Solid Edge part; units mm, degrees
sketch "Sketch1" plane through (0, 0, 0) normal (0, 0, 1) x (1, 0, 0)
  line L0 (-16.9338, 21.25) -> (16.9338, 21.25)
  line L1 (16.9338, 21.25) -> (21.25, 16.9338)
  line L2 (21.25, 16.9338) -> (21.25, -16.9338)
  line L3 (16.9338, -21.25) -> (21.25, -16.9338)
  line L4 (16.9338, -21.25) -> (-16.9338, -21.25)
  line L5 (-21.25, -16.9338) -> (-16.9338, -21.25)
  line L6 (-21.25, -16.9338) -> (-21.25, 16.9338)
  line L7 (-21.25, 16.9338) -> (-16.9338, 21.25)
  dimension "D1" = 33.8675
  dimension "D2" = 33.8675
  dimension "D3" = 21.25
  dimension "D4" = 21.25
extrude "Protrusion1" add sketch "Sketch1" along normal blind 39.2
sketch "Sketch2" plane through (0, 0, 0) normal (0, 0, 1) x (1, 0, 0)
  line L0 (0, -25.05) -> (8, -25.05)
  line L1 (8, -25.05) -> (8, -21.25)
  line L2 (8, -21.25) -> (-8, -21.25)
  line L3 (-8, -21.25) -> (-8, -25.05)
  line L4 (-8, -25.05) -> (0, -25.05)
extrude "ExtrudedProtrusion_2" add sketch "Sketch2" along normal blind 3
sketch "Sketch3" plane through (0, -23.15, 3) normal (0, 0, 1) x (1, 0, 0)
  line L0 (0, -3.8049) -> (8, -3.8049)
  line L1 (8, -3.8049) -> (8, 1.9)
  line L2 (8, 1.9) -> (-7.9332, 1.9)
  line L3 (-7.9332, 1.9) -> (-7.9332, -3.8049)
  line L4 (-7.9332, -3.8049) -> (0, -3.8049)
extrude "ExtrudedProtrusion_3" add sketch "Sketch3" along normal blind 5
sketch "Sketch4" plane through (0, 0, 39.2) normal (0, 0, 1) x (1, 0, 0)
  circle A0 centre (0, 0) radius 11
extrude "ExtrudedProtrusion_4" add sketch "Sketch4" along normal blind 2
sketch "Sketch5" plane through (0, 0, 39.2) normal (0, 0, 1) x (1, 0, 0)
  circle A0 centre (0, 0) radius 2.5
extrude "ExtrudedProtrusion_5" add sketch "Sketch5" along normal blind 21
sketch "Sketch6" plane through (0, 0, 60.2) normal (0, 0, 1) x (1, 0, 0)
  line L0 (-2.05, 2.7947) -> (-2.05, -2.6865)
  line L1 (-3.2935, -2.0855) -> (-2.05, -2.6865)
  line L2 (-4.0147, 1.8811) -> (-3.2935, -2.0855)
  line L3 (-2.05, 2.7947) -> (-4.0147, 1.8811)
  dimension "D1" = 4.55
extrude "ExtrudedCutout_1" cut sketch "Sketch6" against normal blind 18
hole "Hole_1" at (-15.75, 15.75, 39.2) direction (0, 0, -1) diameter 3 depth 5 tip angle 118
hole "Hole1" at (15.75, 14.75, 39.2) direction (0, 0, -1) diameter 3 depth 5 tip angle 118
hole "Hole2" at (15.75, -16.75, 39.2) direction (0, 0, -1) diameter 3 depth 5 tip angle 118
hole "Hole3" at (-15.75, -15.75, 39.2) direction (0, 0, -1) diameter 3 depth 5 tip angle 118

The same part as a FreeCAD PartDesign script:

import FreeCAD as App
import Part
import Sketcher

V = App.Vector


def add_polygon(sketch, points):
    """Adds a closed chain of lines whose ends are joined by coincident constraints."""
    first, n = sketch.GeometryCount, len(points)
    for a, b in zip(points, points[1:] + points[:1]):
        sketch.addGeometry(Part.LineSegment(App.Vector(*a, 0), App.Vector(*b, 0)), False)
    for i in range(n):
        sketch.addConstraint(Sketcher.Constraint("Coincident", first + i, 2, first + (i + 1) % n, 1))

doc = App.newDocument("Part")
params = doc.addObject("Spreadsheet::Sheet", "Params")
for row, (alias, value) in enumerate([
    ("pad1_length", "39.2 mm"),
    ("sketch2_width", "16 mm"),
    ("sketch2_height", "3.8 mm"),
    ("pad2_length", "3 mm"),
    ("pad3_length", "5 mm"),
    ("sketch4_diameter", "22 mm"),
    ("pad4_length", "2 mm"),
    ("sketch5_diameter", "5 mm"),
    ("pad5_length", "21 mm"),
    ("pocket1_length", "18 mm"),
    ("sketch7_diameter", "3 mm"),
    ("hole_diameter", "3 mm"),
    ("hole_depth", "5 mm"),
    ("sketch8_diameter", "3 mm"),
    ("hole2_diameter", "3 mm"),
    ("hole2_depth", "5 mm"),
    ("sketch9_diameter", "3 mm"),
    ("hole3_diameter", "3 mm"),
    ("hole3_depth", "5 mm"),
    ("sketch10_diameter", "3 mm"),
    ("hole4_diameter", "3 mm"),
    ("hole4_depth", "5 mm"),
], start=1):
    params.set(f"A{row}", alias)
    params.set(f"B{row}", "=" + value)
    params.setAlias(f"B{row}", alias)

body = doc.addObject("PartDesign::Body", "Body")

# Sketch on XY plane
sketch1 = doc.addObject("Sketcher::SketchObject", "Sketch")
body.addObject(sketch1)
sketch1.AttachmentSupport = (doc.XY_Plane, [""])
sketch1.MapMode = "FlatFace"
add_polygon(sketch1, [(16.9338, 21.25), (-16.9338, 21.25), (-21.25, 16.9338), (-21.25, -16.9338), (-16.9338, -21.25), (16.9338, -21.25), (21.25, -16.9338), (21.25, 16.9338)])  # lines 0-7
sketch1.addConstraint([
    Sketcher.Constraint("Horizontal", 0),
    Sketcher.Constraint("Vertical", 2),
    Sketcher.Constraint("Horizontal", 4),
    Sketcher.Constraint("Vertical", 6),
    Sketcher.Constraint("Symmetric", 0, 2, 4, 2, -1, 1),
    Sketcher.Constraint("Symmetric", 1, 2, 5, 2, -1, 1),
    Sketcher.Constraint("Perpendicular", 1, 3),
    Sketcher.Constraint("Perpendicular", 5, 7),
    Sketcher.Constraint("Horizontal", 2, 2, 5, 2),
    Sketcher.Constraint("Horizontal", 1, 2, 6, 2),
    Sketcher.Constraint("Vertical", 0, 2, 3, 2),
    Sketcher.Constraint("Equal", 4, 2),
    Sketcher.Constraint("DistanceY", -1, 1, 0, 2, 21.25),
    Sketcher.Constraint("DistanceX", 0, 2, -1, 1, 16.9338),
])
pad1 = doc.addObject("PartDesign::Pad", "Pad")
body.addObject(pad1)
pad1.Profile = sketch1
pad1.setExpression("Length", "Params.pad1_length")

# Sketch on XY plane
sketch2 = doc.addObject("Sketcher::SketchObject", "Sketch001")
body.addObject(sketch2)
sketch2.AttachmentSupport = (doc.XY_Plane, [""])
sketch2.MapMode = "FlatFace"
add_polygon(sketch2, [(-8, -25.05), (8, -25.05), (8, -21.25), (-8, -21.25)])  # lines 0-3
sketch2.addConstraint([
    Sketcher.Constraint("Horizontal", 0),
    Sketcher.Constraint("Vertical", 1),
    Sketcher.Constraint("Horizontal", 2),
    Sketcher.Constraint("Vertical", 3),
    Sketcher.Constraint("DistanceX", 0, 1, 0, 2, 16.0),
    Sketcher.Constraint("DistanceY", 1, 1, 1, 2, 3.8),
    Sketcher.Constraint("DistanceX", -1, 1, 0, 2, 8.0),
    Sketcher.Constraint("DistanceY", 0, 2, -1, 1, 25.05),
])
sketch2.setExpression("Constraints[8]", "Params.sketch2_width")
sketch2.setExpression("Constraints[9]", "Params.sketch2_height")
pad2 = doc.addObject("PartDesign::Pad", "Pad001")
body.addObject(pad2)
pad2.Profile = sketch2
pad2.setExpression("Length", "Params.pad2_length")

# Sketch on XY plane
sketch3 = doc.addObject("Sketcher::SketchObject", "Sketch002")
body.addObject(sketch3)
sketch3.AttachmentSupport = (doc.XY_Plane, [""])
sketch3.MapMode = "FlatFace"
sketch3.AttachmentOffset = App.Placement(V(0, 0, 3), App.Rotation())
add_polygon(sketch3, [(-7.9332, -26.9549), (8, -26.9549), (8, -21.25), (-7.9332, -21.25)])  # lines 0-3
sketch3.addConstraint([
    Sketcher.Constraint("Horizontal", 0),
    Sketcher.Constraint("Vertical", 1),
    Sketcher.Constraint("Horizontal", 2),
    Sketcher.Constraint("Vertical", 3),
    Sketcher.Constraint("DistanceX", -1, 1, 0, 2, 8.0),
    Sketcher.Constraint("DistanceY", 1, 1, 1, 2, 5.705),
    Sketcher.Constraint("DistanceY", 1, 2, -1, 1, 21.25),
    Sketcher.Constraint("DistanceX", 0, 1, 0, 2, 15.9332),
])
pad3 = doc.addObject("PartDesign::Pad", "Pad002")
body.addObject(pad3)
pad3.Profile = sketch3
pad3.setExpression("Length", "Params.pad3_length")

# Sketch on XY plane
sketch4 = doc.addObject("Sketcher::SketchObject", "Sketch003")
body.addObject(sketch4)
sketch4.AttachmentSupport = (doc.XY_Plane, [""])
sketch4.MapMode = "FlatFace"
sketch4.AttachmentOffset = App.Placement(V(0, 0, 39.2), App.Rotation())
sketch4.addGeometry(Part.Circle(V(0, 0, 0), V(0, 0, 1), 11), False)
sketch4.addConstraint([
    Sketcher.Constraint("Coincident", 0, 3, -1, 1),
    Sketcher.Constraint("Diameter", 0, 22.0),
])
sketch4.setExpression("Constraints[1]", "Params.sketch4_diameter")
pad4 = doc.addObject("PartDesign::Pad", "Pad003")
body.addObject(pad4)
pad4.Profile = sketch4
pad4.setExpression("Length", "Params.pad4_length")

# Sketch on XY plane
sketch5 = doc.addObject("Sketcher::SketchObject", "Sketch004")
body.addObject(sketch5)
sketch5.AttachmentSupport = (doc.XY_Plane, [""])
sketch5.MapMode = "FlatFace"
sketch5.AttachmentOffset = App.Placement(V(0, 0, 39.2), App.Rotation())
sketch5.addGeometry(Part.Circle(V(0, 0, 0), V(0, 0, 1), 2.5), False)
sketch5.addConstraint([
    Sketcher.Constraint("Coincident", 0, 3, -1, 1),
    Sketcher.Constraint("Diameter", 0, 5.0),
])
sketch5.setExpression("Constraints[1]", "Params.sketch5_diameter")
pad5 = doc.addObject("PartDesign::Pad", "Pad004")
body.addObject(pad5)
pad5.Profile = sketch5
pad5.setExpression("Length", "Params.pad5_length")

# Sketch on XY plane
sketch6 = doc.addObject("Sketcher::SketchObject", "Sketch005")
body.addObject(sketch6)
sketch6.AttachmentSupport = (doc.XY_Plane, [""])
sketch6.MapMode = "FlatFace"
sketch6.AttachmentOffset = App.Placement(V(0, 0, 60.2), App.Rotation())
add_polygon(sketch6, [(-2.05, -2.6865), (-2.05, 2.7947), (-4.0147, 1.8811), (-3.2935, -2.0855)])  # lines 0-3
sketch6.addConstraint([
    Sketcher.Constraint("Vertical", 0),
    Sketcher.Constraint("DistanceX", 0, 2, -1, 1, 2.05),
    Sketcher.Constraint("DistanceY", 0, 1, 0, 2, 5.4812),
    Sketcher.Constraint("DistanceY", -1, 1, 1, 2, 1.881),
    Sketcher.Constraint("DistanceY", 3, 2, 2, 2, 0.601),
    Sketcher.Constraint("Distance", 1, 2.1667),
    Sketcher.Constraint("Distance", 2, 4.0316),
    Sketcher.Constraint("Distance", 3, 1.3811),
])
pocket1 = doc.addObject("PartDesign::Pocket", "Pocket")
body.addObject(pocket1)
pocket1.Profile = sketch6
pocket1.setExpression("Length", "Params.pocket1_length")

# Sketch on XY plane
sketch7 = doc.addObject("Sketcher::SketchObject", "Sketch006")
body.addObject(sketch7)
sketch7.AttachmentSupport = (doc.XY_Plane, [""])
sketch7.MapMode = "FlatFace"
sketch7.AttachmentOffset = App.Placement(V(0, 0, 39.2), App.Rotation())
sketch7.addGeometry(Part.Circle(V(-15.75, 15.75, 0), V(0, 0, 1), 1.5), False)
sketch7.addConstraint([
    Sketcher.Constraint("Diameter", 0, 3.0),
    Sketcher.Constraint("DistanceX", 0, 3, -1, 1, 15.75),
    Sketcher.Constraint("DistanceY", -1, 1, 0, 3, 15.75),
])
sketch7.setExpression("Constraints[0]", "Params.sketch7_diameter")
doc.recompute()
hole = doc.addObject("PartDesign::Hole", "Hole")
body.addObject(hole)
hole.Profile = sketch7
hole.ThreadType = "None"
hole.setExpression("Diameter", "Params.hole_diameter")
hole.DepthType = "Dimension"
hole.setExpression("Depth", "Params.hole_depth")
hole.DrillPoint = "Angled"
hole.DrillPointAngle = 118

# Sketch on XY plane
sketch8 = doc.addObject("Sketcher::SketchObject", "Sketch007")
body.addObject(sketch8)
sketch8.AttachmentSupport = (doc.XY_Plane, [""])
sketch8.MapMode = "FlatFace"
sketch8.AttachmentOffset = App.Placement(V(0, 0, 39.2), App.Rotation())
sketch8.addGeometry(Part.Circle(V(15.75, 14.75, 0), V(0, 0, 1), 1.5), False)
sketch8.addConstraint([
    Sketcher.Constraint("Diameter", 0, 3.0),
    Sketcher.Constraint("DistanceX", -1, 1, 0, 3, 15.75),
    Sketcher.Constraint("DistanceY", -1, 1, 0, 3, 14.75),
])
sketch8.setExpression("Constraints[0]", "Params.sketch8_diameter")
doc.recompute()
hole2 = doc.addObject("PartDesign::Hole", "Hole001")
body.addObject(hole2)
hole2.Profile = sketch8
hole2.ThreadType = "None"
hole2.setExpression("Diameter", "Params.hole2_diameter")
hole2.DepthType = "Dimension"
hole2.setExpression("Depth", "Params.hole2_depth")
hole2.DrillPoint = "Angled"
hole2.DrillPointAngle = 118

# Sketch on XY plane
sketch9 = doc.addObject("Sketcher::SketchObject", "Sketch008")
body.addObject(sketch9)
sketch9.AttachmentSupport = (doc.XY_Plane, [""])
sketch9.MapMode = "FlatFace"
sketch9.AttachmentOffset = App.Placement(V(0, 0, 39.2), App.Rotation())
sketch9.addGeometry(Part.Circle(V(15.75, -16.75, 0), V(0, 0, 1), 1.5), False)
sketch9.addConstraint([
    Sketcher.Constraint("Diameter", 0, 3.0),
    Sketcher.Constraint("DistanceX", -1, 1, 0, 3, 15.75),
    Sketcher.Constraint("DistanceY", 0, 3, -1, 1, 16.75),
])
sketch9.setExpression("Constraints[0]", "Params.sketch9_diameter")
doc.recompute()
hole3 = doc.addObject("PartDesign::Hole", "Hole002")
body.addObject(hole3)
hole3.Profile = sketch9
hole3.ThreadType = "None"
hole3.setExpression("Diameter", "Params.hole3_diameter")
hole3.DepthType = "Dimension"
hole3.setExpression("Depth", "Params.hole3_depth")
hole3.DrillPoint = "Angled"
hole3.DrillPointAngle = 118

# Sketch on XY plane
sketch10 = doc.addObject("Sketcher::SketchObject", "Sketch009")
body.addObject(sketch10)
sketch10.AttachmentSupport = (doc.XY_Plane, [""])
sketch10.MapMode = "FlatFace"
sketch10.AttachmentOffset = App.Placement(V(0, 0, 39.2), App.Rotation())
sketch10.addGeometry(Part.Circle(V(-15.75, -15.75, 0), V(0, 0, 1), 1.5), False)
sketch10.addConstraint([
    Sketcher.Constraint("Diameter", 0, 3.0),
    Sketcher.Constraint("DistanceX", 0, 3, -1, 1, 15.75),
    Sketcher.Constraint("DistanceY", 0, 3, -1, 1, 15.75),
])
sketch10.setExpression("Constraints[0]", "Params.sketch10_diameter")
doc.recompute()
hole4 = doc.addObject("PartDesign::Hole", "Hole003")
body.addObject(hole4)
hole4.Profile = sketch10
hole4.ThreadType = "None"
hole4.setExpression("Diameter", "Params.hole4_diameter")
hole4.DepthType = "Dimension"
hole4.setExpression("Depth", "Params.hole4_depth")
hole4.DrillPoint = "Angled"
hole4.DrillPointAngle = 118

doc.recompute()
